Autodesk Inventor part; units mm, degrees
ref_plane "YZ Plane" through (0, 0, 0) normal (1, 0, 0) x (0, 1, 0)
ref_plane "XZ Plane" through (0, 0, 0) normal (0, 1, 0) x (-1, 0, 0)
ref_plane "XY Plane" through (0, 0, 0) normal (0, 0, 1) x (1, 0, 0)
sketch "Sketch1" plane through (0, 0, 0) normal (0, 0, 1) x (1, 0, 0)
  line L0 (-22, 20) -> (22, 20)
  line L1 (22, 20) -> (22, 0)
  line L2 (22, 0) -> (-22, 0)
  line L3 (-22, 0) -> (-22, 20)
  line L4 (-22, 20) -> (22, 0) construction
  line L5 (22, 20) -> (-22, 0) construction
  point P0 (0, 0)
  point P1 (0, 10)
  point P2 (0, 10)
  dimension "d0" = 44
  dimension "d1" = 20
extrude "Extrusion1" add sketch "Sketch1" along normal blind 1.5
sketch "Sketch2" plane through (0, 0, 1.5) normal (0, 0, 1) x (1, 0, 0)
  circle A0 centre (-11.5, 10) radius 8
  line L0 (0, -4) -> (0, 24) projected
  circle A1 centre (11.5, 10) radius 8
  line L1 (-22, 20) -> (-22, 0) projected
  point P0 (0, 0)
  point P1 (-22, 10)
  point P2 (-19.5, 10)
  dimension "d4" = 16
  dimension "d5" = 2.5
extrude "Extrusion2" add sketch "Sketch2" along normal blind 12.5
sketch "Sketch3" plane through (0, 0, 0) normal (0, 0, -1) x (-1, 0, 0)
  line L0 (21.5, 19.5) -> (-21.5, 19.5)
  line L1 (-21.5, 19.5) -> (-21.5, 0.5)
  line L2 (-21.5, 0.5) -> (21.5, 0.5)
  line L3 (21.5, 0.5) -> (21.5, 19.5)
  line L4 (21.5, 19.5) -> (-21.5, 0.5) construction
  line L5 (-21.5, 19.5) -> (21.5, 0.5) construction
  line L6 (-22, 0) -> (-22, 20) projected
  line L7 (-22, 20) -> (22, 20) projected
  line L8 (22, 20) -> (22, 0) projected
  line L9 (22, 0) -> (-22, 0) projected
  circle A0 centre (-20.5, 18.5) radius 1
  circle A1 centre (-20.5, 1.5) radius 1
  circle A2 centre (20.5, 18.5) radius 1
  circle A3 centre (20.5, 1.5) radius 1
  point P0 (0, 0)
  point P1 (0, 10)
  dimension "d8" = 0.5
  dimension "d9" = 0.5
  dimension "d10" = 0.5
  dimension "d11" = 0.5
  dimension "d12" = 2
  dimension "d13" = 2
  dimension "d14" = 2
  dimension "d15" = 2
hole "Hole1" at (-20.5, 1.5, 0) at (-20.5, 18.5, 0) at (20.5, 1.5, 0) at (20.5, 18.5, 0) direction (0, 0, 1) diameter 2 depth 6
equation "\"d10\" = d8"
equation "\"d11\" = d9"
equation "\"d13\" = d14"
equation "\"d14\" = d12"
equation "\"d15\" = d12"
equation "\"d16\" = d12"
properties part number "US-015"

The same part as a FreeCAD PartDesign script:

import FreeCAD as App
import Part
import Sketcher
from FreeCAD import Vector


def add_polygon(sketch, points):
    """Adds a closed chain of lines whose ends are joined by coincident constraints."""
    first, n = sketch.GeometryCount, len(points)
    for a, b in zip(points, points[1:] + points[:1]):
        sketch.addGeometry(Part.LineSegment(App.Vector(*a, 0), App.Vector(*b, 0)), False)
    for i in range(n):
        sketch.addConstraint(Sketcher.Constraint("Coincident", first + i, 2, first + (i + 1) % n, 1))

doc = App.newDocument("Part")
body = doc.addObject("PartDesign::Body", "Body")

# Sketch on XY plane
sketch1 = body.newObject("Sketcher::SketchObject", "Sketch")
sketch1.AttachmentSupport = (doc.getObject("XY_Plane"), [""])
sketch1.MapMode = "FlatFace"
add_polygon(sketch1, [(22, 20), (-22, 20), (-22, 0), (22, 0)])  # lines 0-3
sketch1.addConstraint([
    Sketcher.Constraint("Horizontal", 0),
    Sketcher.Constraint("Vertical", 1),
    Sketcher.Constraint("Horizontal", 2),
    Sketcher.Constraint("Vertical", 3),
    Sketcher.Constraint("Symmetric", 1, 2, 2, 2, -1, 1),
    Sketcher.Constraint("DistanceX", 0, 2, 0, 1, 44.0),
    Sketcher.Constraint("DistanceY", 1, 2, 1, 1, 20.0),
])
pad1 = body.newObject("PartDesign::Pad", "Pad")
pad1.Profile = sketch1
pad1.Length = 1.5

# Sketch on XY plane
sketch2 = body.newObject("Sketcher::SketchObject", "Sketch001")
sketch2.AttachmentSupport = (doc.getObject("XY_Plane"), [""])
sketch2.MapMode = "FlatFace"
sketch2.AttachmentOffset = App.Placement(Vector(0, 0, 1.5), App.Rotation())
sketch2.addGeometry([
    Part.Circle(Vector(-12, 10, 0), Vector(0, 0, 1), 8),
    Part.Circle(Vector(12, 10, 0), Vector(0, 0, 1), 8),
], False)
sketch2.addConstraint([
    Sketcher.Constraint("Equal", 0, 1),
    Sketcher.Constraint("Symmetric", 0, 3, 1, 3, -2),
    Sketcher.Constraint("Diameter", 0, 16.0),
    Sketcher.Constraint("DistanceY", -1, 1, 0, 3, 10.0),
    Sketcher.Constraint("DistanceX", 0, 3, 1, 3, 23.0),
])
pad2 = body.newObject("PartDesign::Pad", "Pad001")
pad2.Profile = sketch2
pad2.Length = 12.5

# Sketch on XY plane
sketch3 = body.newObject("Sketcher::SketchObject", "Sketch002")
sketch3.AttachmentSupport = (doc.getObject("XY_Plane"), [""])
sketch3.MapMode = "FlatFace"
sketch3.addGeometry([
    Part.Circle(Vector(-20.5, 1.5, 0), Vector(0, 0, 1), 1),
    Part.Circle(Vector(-20.5, 18.5, 0), Vector(0, 0, 1), 1),
    Part.Circle(Vector(20.5, 1.5, 0), Vector(0, 0, 1), 1),
    Part.Circle(Vector(20.5, 18.5, 0), Vector(0, 0, 1), 1),
], False)
sketch3.addConstraint([
    Sketcher.Constraint("Equal", 0, 1),
    Sketcher.Constraint("Equal", 1, 2),
    Sketcher.Constraint("Equal", 2, 3),
    Sketcher.Constraint("Symmetric", 0, 3, 2, 3, -2),
    Sketcher.Constraint("Symmetric", 1, 3, 3, 3, -2),
    Sketcher.Constraint("Vertical", 0, 3, 1, 3),
    Sketcher.Constraint("Diameter", 0, 2.0),
    Sketcher.Constraint("DistanceY", 0, 3, 1, 3, 17.0),
    Sketcher.Constraint("DistanceX", 0, 3, 2, 3, 41.0),
    Sketcher.Constraint("DistanceY", -1, 1, 0, 3, 1.5),
])
doc.recompute()
hole = body.newObject("PartDesign::Hole", "Hole")
hole.Profile = sketch3
hole.ThreadType = "None"
hole.Diameter = 2
hole.DepthType = "Dimension"
hole.Depth = 6
hole.DrillPoint = "Flat"
hole.Reversed = True

doc.recompute()
